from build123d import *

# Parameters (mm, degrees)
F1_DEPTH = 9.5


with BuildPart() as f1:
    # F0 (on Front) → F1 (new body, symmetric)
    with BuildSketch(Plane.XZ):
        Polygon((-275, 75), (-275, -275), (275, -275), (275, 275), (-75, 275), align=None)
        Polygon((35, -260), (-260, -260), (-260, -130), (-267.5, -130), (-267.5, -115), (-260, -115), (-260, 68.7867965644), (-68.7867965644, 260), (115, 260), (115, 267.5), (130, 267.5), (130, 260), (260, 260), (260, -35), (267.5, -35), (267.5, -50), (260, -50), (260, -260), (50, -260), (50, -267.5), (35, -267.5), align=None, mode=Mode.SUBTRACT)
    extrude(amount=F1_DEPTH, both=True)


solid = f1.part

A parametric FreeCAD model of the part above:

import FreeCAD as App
import Part
import Sketcher

V = App.Vector

doc = App.newDocument("Part")
body = doc.addObject("PartDesign::Body", "Body")

sketch1 = doc.addObject("Sketcher::SketchObject", "Sketch")
body.addObject(sketch1)
sketch1.AttachmentSupport = (doc.XZ_Plane, [""])
sketch1.MapMode = "FlatFace"
sketch1.addGeometry(Part.LineSegment(V(-275, 75, 0), V(-275, -275, 0)), False)
sketch1.addGeometry(Part.LineSegment(V(-275, -275, 0), V(275, -275, 0)), False)
sketch1.addGeometry(Part.LineSegment(V(275, -275, 0), V(275, 275, 0)), False)
sketch1.addGeometry(Part.LineSegment(V(275, 275, 0), V(-75, 275, 0)), False)
sketch1.addGeometry(Part.LineSegment(V(-75, 275, 0), V(-275, 75, 0)), False)
sketch1.addGeometry(Part.LineSegment(V(35, -267.5, 0), V(35, -260, 0)), False)
sketch1.addGeometry(Part.LineSegment(V(35, -260, 0), V(-260, -260, 0)), False)
sketch1.addGeometry(Part.LineSegment(V(-260, -260, 0), V(-260, -130, 0)), False)
sketch1.addGeometry(Part.LineSegment(V(-260, -130, 0), V(-267.5, -130, 0)), False)
sketch1.addGeometry(Part.LineSegment(V(-267.5, -130, 0), V(-267.5, -115, 0)), False)
sketch1.addGeometry(Part.LineSegment(V(-267.5, -115, 0), V(-260, -115, 0)), False)
sketch1.addGeometry(Part.LineSegment(V(-260, -115, 0), V(-260, 68.786797, 0)), False)
sketch1.addGeometry(Part.LineSegment(V(-260, 68.786797, 0), V(-68.786797, 260, 0)), False)
sketch1.addGeometry(Part.LineSegment(V(-68.786797, 260, 0), V(115, 260, 0)), False)
sketch1.addGeometry(Part.LineSegment(V(115, 260, 0), V(115, 267.5, 0)), False)
sketch1.addGeometry(Part.LineSegment(V(115, 267.5, 0), V(130, 267.5, 0)), False)
sketch1.addGeometry(Part.LineSegment(V(130, 267.5, 0), V(130, 260, 0)), False)
sketch1.addGeometry(Part.LineSegment(V(130, 260, 0), V(260, 260, 0)), False)
sketch1.addGeometry(Part.LineSegment(V(260, 260, 0), V(260, -35, 0)), False)
sketch1.addGeometry(Part.LineSegment(V(260, -35, 0), V(267.5, -35, 0)), False)
sketch1.addGeometry(Part.LineSegment(V(267.5, -35, 0), V(267.5, -50, 0)), False)
sketch1.addGeometry(Part.LineSegment(V(267.5, -50, 0), V(260, -50, 0)), False)
sketch1.addGeometry(Part.LineSegment(V(260, -50, 0), V(260, -260, 0)), False)
sketch1.addGeometry(Part.LineSegment(V(260, -260, 0), V(50, -260, 0)), False)
sketch1.addGeometry(Part.LineSegment(V(50, -260, 0), V(50, -267.5, 0)), False)
sketch1.addGeometry(Part.LineSegment(V(50, -267.5, 0), V(35, -267.5, 0)), False)
sketch1.addConstraint(Sketcher.Constraint("Coincident", 0, 2, 1, 1))
sketch1.addConstraint(Sketcher.Constraint("Coincident", 1, 2, 2, 1))
sketch1.addConstraint(Sketcher.Constraint("Coincident", 2, 2, 3, 1))
sketch1.addConstraint(Sketcher.Constraint("Coincident", 3, 2, 4, 1))
sketch1.addConstraint(Sketcher.Constraint("Coincident", 4, 2, 0, 1))
sketch1.addConstraint(Sketcher.Constraint("Coincident", 5, 2, 6, 1))
sketch1.addConstraint(Sketcher.Constraint("Coincident", 6, 2, 7, 1))
sketch1.addConstraint(Sketcher.Constraint("Coincident", 7, 2, 8, 1))
sketch1.addConstraint(Sketcher.Constraint("Coincident", 8, 2, 9, 1))
sketch1.addConstraint(Sketcher.Constraint("Coincident", 9, 2, 10, 1))
sketch1.addConstraint(Sketcher.Constraint("Coincident", 10, 2, 11, 1))
sketch1.addConstraint(Sketcher.Constraint("Coincident", 11, 2, 12, 1))
sketch1.addConstraint(Sketcher.Constraint("Coincident", 12, 2, 13, 1))
sketch1.addConstraint(Sketcher.Constraint("Coincident", 13, 2, 14, 1))
sketch1.addConstraint(Sketcher.Constraint("Coincident", 14, 2, 15, 1))
sketch1.addConstraint(Sketcher.Constraint("Coincident", 15, 2, 16, 1))
sketch1.addConstraint(Sketcher.Constraint("Coincident", 16, 2, 17, 1))
sketch1.addConstraint(Sketcher.Constraint("Coincident", 17, 2, 18, 1))
sketch1.addConstraint(Sketcher.Constraint("Coincident", 18, 2, 19, 1))
sketch1.addConstraint(Sketcher.Constraint("Coincident", 19, 2, 20, 1))
sketch1.addConstraint(Sketcher.Constraint("Coincident", 20, 2, 21, 1))
sketch1.addConstraint(Sketcher.Constraint("Coincident", 21, 2, 22, 1))
sketch1.addConstraint(Sketcher.Constraint("Coincident", 22, 2, 23, 1))
sketch1.addConstraint(Sketcher.Constraint("Coincident", 23, 2, 24, 1))
sketch1.addConstraint(Sketcher.Constraint("Coincident", 24, 2, 25, 1))
sketch1.addConstraint(Sketcher.Constraint("Coincident", 25, 2, 5, 1))
sketch1.addConstraint(Sketcher.Constraint("Vertical", 0))
sketch1.addConstraint(Sketcher.Constraint("Horizontal", 1))
sketch1.addConstraint(Sketcher.Constraint("Vertical", 2))
sketch1.addConstraint(Sketcher.Constraint("Horizontal", 3))
sketch1.addConstraint(Sketcher.Constraint("Vertical", 5))
sketch1.addConstraint(Sketcher.Constraint("Horizontal", 6))
sketch1.addConstraint(Sketcher.Constraint("Vertical", 7))
sketch1.addConstraint(Sketcher.Constraint("Horizontal", 8))
sketch1.addConstraint(Sketcher.Constraint("Vertical", 9))
sketch1.addConstraint(Sketcher.Constraint("Horizontal", 10))
sketch1.addConstraint(Sketcher.Constraint("Vertical", 11))
sketch1.addConstraint(Sketcher.Constraint("Horizontal", 13))
sketch1.addConstraint(Sketcher.Constraint("Vertical", 14))
sketch1.addConstraint(Sketcher.Constraint("Horizontal", 15))
sketch1.addConstraint(Sketcher.Constraint("Vertical", 16))
sketch1.addConstraint(Sketcher.Constraint("Horizontal", 17))
sketch1.addConstraint(Sketcher.Constraint("Vertical", 18))
sketch1.addConstraint(Sketcher.Constraint("Horizontal", 19))
sketch1.addConstraint(Sketcher.Constraint("Vertical", 20))
sketch1.addConstraint(Sketcher.Constraint("Horizontal", 21))
sketch1.addConstraint(Sketcher.Constraint("Vertical", 22))
sketch1.addConstraint(Sketcher.Constraint("Horizontal", 23))
sketch1.addConstraint(Sketcher.Constraint("Vertical", 24))
sketch1.addConstraint(Sketcher.Constraint("Horizontal", 25))
sketch1.addConstraint(Sketcher.Constraint("Symmetric", 0, 2, 2, 2, -1, 1))
sketch1.addConstraint(Sketcher.Constraint("Symmetric", 6, 2, 17, 2, -1, 1))
sketch1.addConstraint(Sketcher.Constraint("Symmetric", 6, 2, 22, 2, -2))
sketch1.addConstraint(Sketcher.Constraint("Parallel", 4, 12))
sketch1.addConstraint(Sketcher.Constraint("Horizontal", 13, 2, 16, 2))
sketch1.addConstraint(Sketcher.Constraint("Vertical", 7, 2, 10, 2))
sketch1.addConstraint(Sketcher.Constraint("Equal", 10, 19))
sketch1.addConstraint(Sketcher.Constraint("Equal", 15, 25))
sketch1.addConstraint(Sketcher.Constraint("Equal", 3, 0))
sketch1.addConstraint(Sketcher.Constraint("Equal", 1, 2))
sketch1.addConstraint(Sketcher.Constraint("Equal", 21, 5))
sketch1.addConstraint(Sketcher.Constraint("Equal", 17, 7))
sketch1.addConstraint(Sketcher.Constraint("Equal", 25, 9))
sketch1.addConstraint(Sketcher.Constraint("Equal", 13, 11))
sketch1.addConstraint(Sketcher.Constraint("Equal", 5, 14))
sketch1.addConstraint(Sketcher.Constraint("Equal", 6, 18))
sketch1.addConstraint(Sketcher.Constraint("Equal", 9, 20))
sketch1.addConstraint(Sketcher.Constraint("DistanceX", 1, 1, 1, 2, 550.0))
sketch1.addConstraint(Sketcher.Constraint("DistanceX", 3, 2, 3, 1, 350.0))
sketch1.addConstraint(Sketcher.Constraint("DistanceX", 6, 2, 6, 1, 295.0))
sketch1.addConstraint(Sketcher.Constraint("DistanceX", 15, 1, 15, 2, 15.0))
sketch1.addConstraint(Sketcher.Constraint("DistanceX", 17, 1, 17, 2, 130.0))
sketch1.addConstraint(Sketcher.Constraint("DistanceX", 23, 2, 23, 1, 210.0))
sketch1.addConstraint(Sketcher.Constraint("DistanceX", 8, 2, 8, 1, 7.5))
sketch1.addConstraint(Sketcher.Constraint("DistanceX", 13, 1, 13, 2, 183.786797))
pad1 = doc.addObject("PartDesign::Pad", "Pad")
body.addObject(pad1)
pad1.Profile = sketch1
pad1.Length = 19
pad1.Midplane = True

doc.recompute()
